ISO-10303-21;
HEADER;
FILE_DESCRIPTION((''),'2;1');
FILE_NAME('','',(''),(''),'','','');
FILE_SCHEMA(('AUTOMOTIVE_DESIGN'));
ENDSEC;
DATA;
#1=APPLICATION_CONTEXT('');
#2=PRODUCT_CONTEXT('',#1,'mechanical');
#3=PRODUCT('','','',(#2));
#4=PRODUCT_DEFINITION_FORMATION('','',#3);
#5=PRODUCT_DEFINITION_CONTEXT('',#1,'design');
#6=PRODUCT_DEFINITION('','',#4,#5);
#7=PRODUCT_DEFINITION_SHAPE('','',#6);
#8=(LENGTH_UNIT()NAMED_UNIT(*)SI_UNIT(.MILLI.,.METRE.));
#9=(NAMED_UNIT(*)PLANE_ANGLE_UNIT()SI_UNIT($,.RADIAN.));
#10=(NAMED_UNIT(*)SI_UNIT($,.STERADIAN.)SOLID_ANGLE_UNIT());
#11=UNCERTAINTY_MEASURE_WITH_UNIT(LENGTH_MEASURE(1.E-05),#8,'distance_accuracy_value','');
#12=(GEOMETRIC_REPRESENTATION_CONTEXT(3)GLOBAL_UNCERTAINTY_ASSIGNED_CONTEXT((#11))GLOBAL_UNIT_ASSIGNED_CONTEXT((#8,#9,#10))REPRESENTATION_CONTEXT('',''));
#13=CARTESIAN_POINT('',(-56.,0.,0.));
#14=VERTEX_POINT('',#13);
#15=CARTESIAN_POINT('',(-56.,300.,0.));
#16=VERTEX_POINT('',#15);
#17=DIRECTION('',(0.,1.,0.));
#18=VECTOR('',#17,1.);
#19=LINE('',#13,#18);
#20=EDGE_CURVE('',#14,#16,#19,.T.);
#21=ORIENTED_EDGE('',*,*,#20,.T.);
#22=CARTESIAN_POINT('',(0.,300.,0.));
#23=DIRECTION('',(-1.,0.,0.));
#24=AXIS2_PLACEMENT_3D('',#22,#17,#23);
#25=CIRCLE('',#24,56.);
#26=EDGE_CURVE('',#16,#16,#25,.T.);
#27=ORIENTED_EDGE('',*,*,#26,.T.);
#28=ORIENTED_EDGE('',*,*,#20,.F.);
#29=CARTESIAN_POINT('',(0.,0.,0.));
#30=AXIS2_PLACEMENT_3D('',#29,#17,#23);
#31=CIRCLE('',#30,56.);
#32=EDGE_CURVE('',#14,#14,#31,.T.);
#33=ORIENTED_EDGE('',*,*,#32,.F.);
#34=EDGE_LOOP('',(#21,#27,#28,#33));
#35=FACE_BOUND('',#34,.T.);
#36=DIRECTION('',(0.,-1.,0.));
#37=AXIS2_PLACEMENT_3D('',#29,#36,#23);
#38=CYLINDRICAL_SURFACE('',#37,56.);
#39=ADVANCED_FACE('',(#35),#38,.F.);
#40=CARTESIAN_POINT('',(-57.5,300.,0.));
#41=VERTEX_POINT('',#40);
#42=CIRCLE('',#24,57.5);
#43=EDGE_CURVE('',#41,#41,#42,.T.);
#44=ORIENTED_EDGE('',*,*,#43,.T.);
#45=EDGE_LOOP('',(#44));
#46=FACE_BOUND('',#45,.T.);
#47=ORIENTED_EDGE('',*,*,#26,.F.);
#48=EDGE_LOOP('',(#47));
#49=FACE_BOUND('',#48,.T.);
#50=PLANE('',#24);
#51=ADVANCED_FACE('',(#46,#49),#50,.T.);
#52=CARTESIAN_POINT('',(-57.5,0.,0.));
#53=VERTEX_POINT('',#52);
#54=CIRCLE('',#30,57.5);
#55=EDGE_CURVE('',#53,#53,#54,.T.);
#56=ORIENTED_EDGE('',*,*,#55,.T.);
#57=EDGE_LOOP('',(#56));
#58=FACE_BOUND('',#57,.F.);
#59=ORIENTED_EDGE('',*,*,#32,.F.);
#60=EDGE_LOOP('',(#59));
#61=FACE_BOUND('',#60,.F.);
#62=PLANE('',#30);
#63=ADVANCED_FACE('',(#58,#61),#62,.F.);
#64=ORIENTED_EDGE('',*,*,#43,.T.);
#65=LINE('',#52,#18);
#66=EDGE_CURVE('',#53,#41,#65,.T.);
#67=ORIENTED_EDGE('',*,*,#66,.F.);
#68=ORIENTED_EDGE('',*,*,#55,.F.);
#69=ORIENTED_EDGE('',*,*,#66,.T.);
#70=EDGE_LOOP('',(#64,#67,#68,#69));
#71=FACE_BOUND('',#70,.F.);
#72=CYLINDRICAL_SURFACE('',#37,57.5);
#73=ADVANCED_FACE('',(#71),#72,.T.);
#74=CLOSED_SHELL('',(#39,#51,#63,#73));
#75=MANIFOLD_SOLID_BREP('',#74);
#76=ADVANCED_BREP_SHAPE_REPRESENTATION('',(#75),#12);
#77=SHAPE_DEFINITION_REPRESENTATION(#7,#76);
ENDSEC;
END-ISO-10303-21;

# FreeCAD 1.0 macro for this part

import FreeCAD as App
import Part
import Sketcher

V = App.Vector
Q = App.Units.Quantity

doc = App.newDocument("Part")
params = doc.addObject("Spreadsheet::Sheet", "Params")
for row, (alias, value) in enumerate([
    ("sketch1_diameter", "115 mm"),
    ("sketch1_diameter2", "112 mm"),
    ("pad1_length", "300 mm"),
], start=1):
    params.set(f"A{row}", alias)
    params.set(f"B{row}", "=" + value)
    params.setAlias(f"B{row}", alias)

body = doc.addObject("PartDesign::Body", "Body")

sketch1 = body.newObject("Sketcher::SketchObject", "Sketch")
sketch1.AttachmentSupport = (doc.getObject("XZ_Plane"), [""])
sketch1.MapMode = "FlatFace"
sketch1.addGeometry([
    Part.Circle(V(0, 0, 0), V(0, 0, 1), 58),
    Part.Circle(V(0, 0, 0), V(0, 0, 1), 56),
], False)
sketch1.addConstraint([
    Sketcher.Constraint("Coincident", 0, 3, -1, 1),
    Sketcher.Constraint("Coincident", 1, 3, -1, 1),
    Sketcher.Constraint("Diameter", 0, Q("115 mm")),
    Sketcher.Constraint("Diameter", 1, Q("112 mm")),
])
sketch1.setExpression("Constraints[2]", "Params.sketch1_diameter")
sketch1.setExpression("Constraints[3]", "Params.sketch1_diameter2")
pad1 = body.newObject("PartDesign::Pad", "Pad")
pad1.Profile = sketch1
pad1.setExpression("Length", "Params.pad1_length")
pad1.Reversed = True

doc.recompute()
